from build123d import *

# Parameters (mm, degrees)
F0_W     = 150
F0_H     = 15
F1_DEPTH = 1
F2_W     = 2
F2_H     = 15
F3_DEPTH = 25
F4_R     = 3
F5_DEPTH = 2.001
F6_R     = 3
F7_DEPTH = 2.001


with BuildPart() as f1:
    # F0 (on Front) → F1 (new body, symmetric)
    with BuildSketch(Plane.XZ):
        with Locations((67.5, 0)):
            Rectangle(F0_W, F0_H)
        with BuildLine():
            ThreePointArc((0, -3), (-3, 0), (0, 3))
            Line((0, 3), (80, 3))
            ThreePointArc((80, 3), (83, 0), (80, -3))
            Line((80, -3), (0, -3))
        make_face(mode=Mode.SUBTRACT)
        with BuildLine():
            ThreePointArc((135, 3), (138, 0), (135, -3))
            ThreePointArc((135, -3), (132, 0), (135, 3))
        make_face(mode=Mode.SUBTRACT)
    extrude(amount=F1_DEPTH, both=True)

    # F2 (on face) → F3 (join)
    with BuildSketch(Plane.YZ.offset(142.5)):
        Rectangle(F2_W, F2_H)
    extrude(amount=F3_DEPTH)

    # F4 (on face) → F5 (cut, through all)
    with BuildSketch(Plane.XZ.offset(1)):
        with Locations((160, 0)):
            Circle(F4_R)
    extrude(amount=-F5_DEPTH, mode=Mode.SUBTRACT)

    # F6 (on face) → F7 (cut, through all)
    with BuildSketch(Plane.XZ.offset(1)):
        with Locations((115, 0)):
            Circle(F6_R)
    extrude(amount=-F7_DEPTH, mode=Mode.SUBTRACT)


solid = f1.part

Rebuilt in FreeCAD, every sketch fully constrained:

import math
import FreeCAD as App
import Part
import Sketcher
from FreeCAD import Vector


def add_polygon(sketch, points):
    """Adds a closed chain of lines whose ends are joined by coincident constraints."""
    first, n = sketch.GeometryCount, len(points)
    for a, b in zip(points, points[1:] + points[:1]):
        sketch.addGeometry(Part.LineSegment(App.Vector(*a, 0), App.Vector(*b, 0)), False)
    for i in range(n):
        sketch.addConstraint(Sketcher.Constraint("Coincident", first + i, 2, first + (i + 1) % n, 1))

doc = App.newDocument("Part")
params = doc.addObject("Spreadsheet::Sheet", "Params")
for row, (alias, value) in enumerate([
    ("sketch1_diameter", "6 mm"),
    ("sketch1_width", "150 mm"),
    ("sketch1_width2", "80 mm"),
    ("sketch1_height", "15 mm"),
    ("pad1_length", "2 mm"),
    ("sketch2_width", "2 mm"),
    ("sketch2_height", "15 mm"),
    ("pad2_length", "25 mm"),
    ("sketch3_diameter", "6 mm"),
    ("sketch4_diameter", "6 mm"),
], start=1):
    params.set(f"A{row}", alias)
    params.set(f"B{row}", "=" + value)
    params.setAlias(f"B{row}", alias)

body = doc.addObject("PartDesign::Body", "Body")

# Sketch on XZ plane
sketch1 = body.newObject("Sketcher::SketchObject", "Sketch")
sketch1.AttachmentSupport = (doc.getObject("XZ_Plane"), [""])
sketch1.MapMode = "FlatFace"
add_polygon(sketch1, [(-7.5, 7.5), (-7.5, -7.5), (142.5, -7.5), (142.5, 7.5)])  # lines 0-3
sketch1.addGeometry(Part.LineSegment(Vector(80, -3, 0), Vector(0, -3, 0)), False)  # 4
sketch1.addGeometry(Part.ArcOfCircle(Part.Circle(Vector(0, 0, 0), Vector(0, 0, 1), 3), math.radians(90), math.radians(270)), False)  # 5
sketch1.addGeometry(Part.LineSegment(Vector(0, 3, 0), Vector(80, 3, 0)), False)  # 6
sketch1.addGeometry(Part.ArcOfCircle(Part.Circle(Vector(80, 0, 0), Vector(0, 0, 1), 3), math.radians(-90), math.radians(90)), False)  # 7
sketch1.addGeometry(Part.Circle(Vector(135, 0, 0), Vector(0, 0, 1), 3), False)  # 8
sketch1.addConstraint([
    Sketcher.Constraint("Tangent", 4, 2, 5, 2),
    Sketcher.Constraint("Tangent", 5, 1, 6, 1),
    Sketcher.Constraint("Tangent", 6, 2, 7, 2),
    Sketcher.Constraint("Tangent", 7, 1, 4, 1),
    Sketcher.Constraint("Vertical", 0),
    Sketcher.Constraint("Horizontal", 1),
    Sketcher.Constraint("Vertical", 2),
    Sketcher.Constraint("Horizontal", 3),
    Sketcher.Constraint("Horizontal", 4),
    Sketcher.Constraint("Horizontal", 6),
    Sketcher.Constraint("Coincident", 5, 3, -1, 1),
    Sketcher.Constraint("Equal", 7, 8),
    Sketcher.Constraint("PointOnObject", 8, 3, -1),
    Sketcher.Constraint("Diameter", 8, 6.0),
    Sketcher.Constraint("DistanceX", 1, 1, 1, 2, 150.0),
    Sketcher.Constraint("DistanceX", 4, 2, 4, 1, 80.0),
    Sketcher.Constraint("DistanceY", 0, 2, 0, 1, 15.0),
    Sketcher.Constraint("DistanceX", -1, 1, 8, 3, 135.0),
    Sketcher.Constraint("DistanceX", 0, 2, -1, 1, 7.5),
    Sketcher.Constraint("DistanceY", 0, 2, -1, 1, 7.5),
])
sketch1.setExpression("Constraints[17]", "Params.sketch1_diameter")
sketch1.setExpression("Constraints[18]", "Params.sketch1_width")
sketch1.setExpression("Constraints[19]", "Params.sketch1_width2")
sketch1.setExpression("Constraints[20]", "Params.sketch1_height")
pad1 = body.newObject("PartDesign::Pad", "Pad")
pad1.Profile = sketch1
pad1.setExpression("Length", "Params.pad1_length")
pad1.Midplane = True

# Sketch on YZ plane
sketch2 = body.newObject("Sketcher::SketchObject", "Sketch001")
sketch2.AttachmentSupport = (doc.getObject("YZ_Plane"), [""])
sketch2.MapMode = "FlatFace"
sketch2.AttachmentOffset = App.Placement(Vector(0, 0, 142.5), App.Rotation())
add_polygon(sketch2, [(-1, 7.5), (-1, -7.5), (1, -7.5), (1, 7.5)])  # lines 0-3
sketch2.addConstraint([
    Sketcher.Constraint("Vertical", 0),
    Sketcher.Constraint("Horizontal", 1),
    Sketcher.Constraint("Vertical", 2),
    Sketcher.Constraint("Horizontal", 3),
    Sketcher.Constraint("Symmetric", 0, 2, 2, 2, -1, 1),
    Sketcher.Constraint("DistanceX", 1, 1, 1, 2, 2.0),
    Sketcher.Constraint("DistanceY", 0, 2, 0, 1, 15.0),
])
sketch2.setExpression("Constraints[9]", "Params.sketch2_width")
sketch2.setExpression("Constraints[10]", "Params.sketch2_height")
pad2 = body.newObject("PartDesign::Pad", "Pad001")
pad2.Profile = sketch2
pad2.setExpression("Length", "Params.pad2_length")

# Sketch on XZ plane
sketch3 = body.newObject("Sketcher::SketchObject", "Sketch002")
sketch3.AttachmentSupport = (doc.getObject("XZ_Plane"), [""])
sketch3.MapMode = "FlatFace"
sketch3.AttachmentOffset = App.Placement(Vector(0, 0, 1), App.Rotation())
sketch3.addGeometry(Part.Circle(Vector(160, 0, 0), Vector(0, 0, 1), 3), False)
sketch3.addConstraint([
    Sketcher.Constraint("PointOnObject", 0, 3, -1),
    Sketcher.Constraint("Diameter", 0, 6.0),
    Sketcher.Constraint("DistanceX", -1, 1, 0, 3, 160.0),
])
sketch3.setExpression("Constraints[1]", "Params.sketch3_diameter")
pocket1 = body.newObject("PartDesign::Pocket", "Pocket")
pocket1.Profile = sketch3
pocket1.Type = "ThroughAll"

# Sketch on XZ plane
sketch4 = body.newObject("Sketcher::SketchObject", "Sketch003")
sketch4.AttachmentSupport = (doc.getObject("XZ_Plane"), [""])
sketch4.MapMode = "FlatFace"
sketch4.AttachmentOffset = App.Placement(Vector(0, 0, 1), App.Rotation())
sketch4.addGeometry(Part.Circle(Vector(115, 0, 0), Vector(0, 0, 1), 3), False)
sketch4.addConstraint([
    Sketcher.Constraint("PointOnObject", 0, 3, -1),
    Sketcher.Constraint("Diameter", 0, 6.0),
    Sketcher.Constraint("DistanceX", -1, 1, 0, 3, 115.0),
])
sketch4.setExpression("Constraints[1]", "Params.sketch4_diameter")
pocket2 = body.newObject("PartDesign::Pocket", "Pocket001")
pocket2.Profile = sketch4
pocket2.Type = "ThroughAll"

doc.recompute()
